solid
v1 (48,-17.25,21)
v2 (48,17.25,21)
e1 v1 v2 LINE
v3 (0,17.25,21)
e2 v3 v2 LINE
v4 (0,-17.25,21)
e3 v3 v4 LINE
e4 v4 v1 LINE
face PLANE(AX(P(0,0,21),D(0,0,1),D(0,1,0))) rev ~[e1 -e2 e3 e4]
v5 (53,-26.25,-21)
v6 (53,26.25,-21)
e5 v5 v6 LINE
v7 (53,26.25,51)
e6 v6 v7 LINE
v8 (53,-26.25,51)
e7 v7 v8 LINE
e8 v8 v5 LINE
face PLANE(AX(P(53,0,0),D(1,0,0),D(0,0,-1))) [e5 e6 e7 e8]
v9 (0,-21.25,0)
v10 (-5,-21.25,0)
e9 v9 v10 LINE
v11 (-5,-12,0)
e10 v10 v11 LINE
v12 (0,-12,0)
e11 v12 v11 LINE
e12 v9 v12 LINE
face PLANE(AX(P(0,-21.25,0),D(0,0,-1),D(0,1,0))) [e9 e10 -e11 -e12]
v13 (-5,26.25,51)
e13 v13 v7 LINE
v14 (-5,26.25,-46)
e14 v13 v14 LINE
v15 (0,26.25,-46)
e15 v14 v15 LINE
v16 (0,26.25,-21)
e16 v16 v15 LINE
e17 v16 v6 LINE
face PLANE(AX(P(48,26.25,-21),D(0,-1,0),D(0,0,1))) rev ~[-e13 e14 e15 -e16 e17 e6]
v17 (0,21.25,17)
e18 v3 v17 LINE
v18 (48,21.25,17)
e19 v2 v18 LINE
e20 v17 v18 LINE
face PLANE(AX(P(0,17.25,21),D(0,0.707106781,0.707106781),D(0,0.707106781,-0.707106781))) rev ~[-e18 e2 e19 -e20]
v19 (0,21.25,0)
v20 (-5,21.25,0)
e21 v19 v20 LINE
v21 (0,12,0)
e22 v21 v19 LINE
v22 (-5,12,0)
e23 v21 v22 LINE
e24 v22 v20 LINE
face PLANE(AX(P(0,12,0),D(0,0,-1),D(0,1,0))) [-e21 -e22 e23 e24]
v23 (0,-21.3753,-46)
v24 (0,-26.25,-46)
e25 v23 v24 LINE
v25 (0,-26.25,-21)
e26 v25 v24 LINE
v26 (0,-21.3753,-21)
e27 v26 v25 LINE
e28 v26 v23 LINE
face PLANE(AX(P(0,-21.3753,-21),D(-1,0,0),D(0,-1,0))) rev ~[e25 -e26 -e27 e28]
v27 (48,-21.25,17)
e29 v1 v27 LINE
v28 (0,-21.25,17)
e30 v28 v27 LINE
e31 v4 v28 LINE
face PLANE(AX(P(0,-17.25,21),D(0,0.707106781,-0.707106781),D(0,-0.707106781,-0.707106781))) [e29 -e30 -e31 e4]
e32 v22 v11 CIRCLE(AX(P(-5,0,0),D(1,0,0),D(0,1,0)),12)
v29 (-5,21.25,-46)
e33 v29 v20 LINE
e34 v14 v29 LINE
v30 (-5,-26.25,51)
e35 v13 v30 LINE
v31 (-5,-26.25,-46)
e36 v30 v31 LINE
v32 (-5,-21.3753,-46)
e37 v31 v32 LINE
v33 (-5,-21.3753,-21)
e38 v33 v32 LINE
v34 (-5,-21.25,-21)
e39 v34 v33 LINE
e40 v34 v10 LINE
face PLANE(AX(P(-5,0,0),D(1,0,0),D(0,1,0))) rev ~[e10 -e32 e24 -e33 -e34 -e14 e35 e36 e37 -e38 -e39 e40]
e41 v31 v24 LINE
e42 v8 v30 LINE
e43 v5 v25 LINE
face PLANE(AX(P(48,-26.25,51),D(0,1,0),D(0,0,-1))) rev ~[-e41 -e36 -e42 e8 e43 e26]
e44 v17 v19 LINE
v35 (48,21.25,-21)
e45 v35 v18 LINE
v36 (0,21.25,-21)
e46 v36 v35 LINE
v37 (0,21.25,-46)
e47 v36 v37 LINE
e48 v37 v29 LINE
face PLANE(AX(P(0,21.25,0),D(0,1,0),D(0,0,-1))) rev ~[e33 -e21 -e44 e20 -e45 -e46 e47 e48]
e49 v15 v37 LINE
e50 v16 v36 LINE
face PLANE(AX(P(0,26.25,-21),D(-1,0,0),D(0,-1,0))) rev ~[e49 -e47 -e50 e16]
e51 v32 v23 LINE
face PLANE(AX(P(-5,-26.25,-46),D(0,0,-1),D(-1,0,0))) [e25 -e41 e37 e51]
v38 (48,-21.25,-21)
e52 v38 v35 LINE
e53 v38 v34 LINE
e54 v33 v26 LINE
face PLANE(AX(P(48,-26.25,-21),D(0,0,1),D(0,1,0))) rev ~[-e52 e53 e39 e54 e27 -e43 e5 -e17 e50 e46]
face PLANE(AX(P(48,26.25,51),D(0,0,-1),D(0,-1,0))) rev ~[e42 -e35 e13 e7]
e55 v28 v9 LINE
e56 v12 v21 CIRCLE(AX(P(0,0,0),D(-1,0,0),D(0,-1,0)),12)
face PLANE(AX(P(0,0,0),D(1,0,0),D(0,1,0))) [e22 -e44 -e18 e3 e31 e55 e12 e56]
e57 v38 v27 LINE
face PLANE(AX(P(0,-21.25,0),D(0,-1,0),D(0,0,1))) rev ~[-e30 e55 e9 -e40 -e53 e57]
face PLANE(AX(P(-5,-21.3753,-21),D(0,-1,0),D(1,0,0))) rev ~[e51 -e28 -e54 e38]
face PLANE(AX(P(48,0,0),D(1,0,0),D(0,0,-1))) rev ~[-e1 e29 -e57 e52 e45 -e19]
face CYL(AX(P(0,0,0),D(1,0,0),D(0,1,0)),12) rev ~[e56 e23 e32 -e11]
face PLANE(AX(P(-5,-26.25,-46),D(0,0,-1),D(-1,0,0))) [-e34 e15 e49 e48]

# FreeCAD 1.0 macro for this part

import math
import FreeCAD as App
import Part
import Sketcher
from FreeCAD import Vector
Q = App.Units.Quantity


def add_polygon(sketch, points):
    """Adds a closed chain of lines whose ends are joined by coincident constraints."""
    first, n = sketch.GeometryCount, len(points)
    for a, b in zip(points, points[1:] + points[:1]):
        sketch.addGeometry(Part.LineSegment(App.Vector(*a, 0), App.Vector(*b, 0)), False)
    for i in range(n):
        sketch.addConstraint(Sketcher.Constraint("Coincident", first + i, 2, first + (i + 1) % n, 1))

doc = App.newDocument("Part")
params = doc.addObject("Spreadsheet::Sheet", "Params")
for row, (alias, value) in enumerate([
    ("sketch1_width", "5 mm"),
    ("sketch1_height", "72 mm"),
    ("pad1_length", "48 mm"),
    ("sketch2_radius", "12 mm"),
    ("sketch2_width", "5 mm"),
    ("sketch2_height", "21 mm"),
    ("sketch2_height2", "72 mm"),
    ("pad2_length", "5 mm"),
    ("sketch3_height", "72 mm"),
    ("sketch3_width", "52.5 mm"),
    ("pad3_length", "5 mm"),
    ("sketch4_width", "5 mm"),
    ("pad4_length", "25 mm"),
], start=1):
    params.set(f"A{row}", alias)
    params.set(f"B{row}", "=" + value)
    params.setAlias(f"B{row}", alias)

body = doc.addObject("PartDesign::Body", "Body")

sketch1 = body.newObject("Sketcher::SketchObject", "Sketch")
sketch1.AttachmentSupport = (doc.getObject("YZ_Plane"), [""])
sketch1.MapMode = "FlatFace"
add_polygon(sketch1, [(21, -21), (26, -21), (26, 51), (-26, 51), (-26, -21), (-21, -21), (-21, 17), (-17, 21), (17, 21), (21, 17)])
sketch1.addConstraint(Sketcher.Constraint("Horizontal", 0))
sketch1.addConstraint(Sketcher.Constraint("Vertical", 1))
sketch1.addConstraint(Sketcher.Constraint("Horizontal", 2))
sketch1.addConstraint(Sketcher.Constraint("Vertical", 3))
sketch1.addConstraint(Sketcher.Constraint("Horizontal", 4))
sketch1.addConstraint(Sketcher.Constraint("Vertical", 5))
sketch1.addConstraint(Sketcher.Constraint("Horizontal", 7))
sketch1.addConstraint(Sketcher.Constraint("Vertical", 9))
sketch1.addConstraint(Sketcher.Constraint("Symmetric", 0, 2, 3, 2, -2))
sketch1.addConstraint(Sketcher.Constraint("Symmetric", 5, 2, 8, 2, -2))
sketch1.addConstraint(Sketcher.Constraint("Perpendicular", 6, 8))
sketch1.addConstraint(Sketcher.Constraint("Equal", 6, 8))
sketch1.addConstraint(Sketcher.Constraint("DistanceX", 0, 1, 0, 2, Q("5 mm")))
sketch1.addConstraint(Sketcher.Constraint("DistanceX", 5, 2, 6, 2, Q("4 mm")))
sketch1.addConstraint(Sketcher.Constraint("DistanceY", 4, 2, 6, 2, Q("42 mm")))
sketch1.addConstraint(Sketcher.Constraint("DistanceX", 5, 2, 8, 2, Q("42.5 mm")))
sketch1.addConstraint(Sketcher.Constraint("DistanceY", 1, 1, 1, 2, Q("72 mm")))
sketch1.addConstraint(Sketcher.Constraint("DistanceY", 0, 2, -1, 1, Q("21 mm")))
sketch1.setExpression("Constraints[22]", "Params.sketch1_width")
sketch1.setExpression("Constraints[26]", "Params.sketch1_height")
pad1 = body.newObject("PartDesign::Pad", "Pad")
pad1.Profile = sketch1
pad1.setExpression("Length", "Params.pad1_length")

sketch2 = body.newObject("Sketcher::SketchObject", "Sketch001")
sketch2.AttachmentSupport = (doc.getObject("YZ_Plane"), [""])
sketch2.MapMode = "FlatFace"
sketch2.addGeometry(Part.LineSegment(Vector(21, 0, 0), Vector(21, -21, 0)), False)
sketch2.addGeometry(Part.LineSegment(Vector(21, -21, 0), Vector(26, -21, 0)), False)
sketch2.addGeometry(Part.LineSegment(Vector(26, -21, 0), Vector(26, 51, 0)), False)
sketch2.addGeometry(Part.LineSegment(Vector(26, 51, 0), Vector(-26, 51, 0)), False)
sketch2.addGeometry(Part.LineSegment(Vector(-26, 51, 0), Vector(-26, -21, 0)), False)
sketch2.addGeometry(Part.LineSegment(Vector(-26, -21, 0), Vector(-21, -21, 0)), False)
sketch2.addGeometry(Part.LineSegment(Vector(-21, -21, 0), Vector(-21, 0, 0)), False)
sketch2.addGeometry(Part.LineSegment(Vector(-21, 0, 0), Vector(-12, 0, 0)), False)
sketch2.addGeometry(Part.ArcOfCircle(Part.Circle(Vector(0, 0, 0), Vector(0, 0, 1), 12), math.radians(0), math.radians(180)), False)
sketch2.addGeometry(Part.LineSegment(Vector(12, 0, 0), Vector(21, 0, 0)), False)
sketch2.addConstraint(Sketcher.Constraint("Coincident", 0, 2, 1, 1))
sketch2.addConstraint(Sketcher.Constraint("Coincident", 1, 2, 2, 1))
sketch2.addConstraint(Sketcher.Constraint("Coincident", 2, 2, 3, 1))
sketch2.addConstraint(Sketcher.Constraint("Coincident", 3, 2, 4, 1))
sketch2.addConstraint(Sketcher.Constraint("Coincident", 4, 2, 5, 1))
sketch2.addConstraint(Sketcher.Constraint("Coincident", 5, 2, 6, 1))
sketch2.addConstraint(Sketcher.Constraint("Coincident", 6, 2, 7, 1))
sketch2.addConstraint(Sketcher.Constraint("Coincident", 7, 2, 8, 2))
sketch2.addConstraint(Sketcher.Constraint("Coincident", 8, 1, 9, 1))
sketch2.addConstraint(Sketcher.Constraint("Coincident", 9, 2, 0, 1))
sketch2.addConstraint(Sketcher.Constraint("Vertical", 0))
sketch2.addConstraint(Sketcher.Constraint("Horizontal", 1))
sketch2.addConstraint(Sketcher.Constraint("Vertical", 2))
sketch2.addConstraint(Sketcher.Constraint("Horizontal", 3))
sketch2.addConstraint(Sketcher.Constraint("Vertical", 4))
sketch2.addConstraint(Sketcher.Constraint("Horizontal", 5))
sketch2.addConstraint(Sketcher.Constraint("Vertical", 6))
sketch2.addConstraint(Sketcher.Constraint("Horizontal", 7))
sketch2.addConstraint(Sketcher.Constraint("Horizontal", 9))
sketch2.addConstraint(Sketcher.Constraint("Coincident", 8, 3, -1, 1))
sketch2.addConstraint(Sketcher.Constraint("Symmetric", 6, 2, 9, 2, -1, 1))
sketch2.addConstraint(Sketcher.Constraint("Symmetric", 1, 2, 4, 2, -2))
sketch2.addConstraint(Sketcher.Constraint("PointOnObject", 6, 2, -1))
sketch2.addConstraint(Sketcher.Constraint("Radius", 8, Q("12 mm")))
sketch2.addConstraint(Sketcher.Constraint("DistanceX", 1, 1, 1, 2, Q("5 mm")))
sketch2.addConstraint(Sketcher.Constraint("DistanceX", 5, 2, 0, 2, Q("42.5 mm")))
sketch2.addConstraint(Sketcher.Constraint("DistanceY", 0, 2, 0, 1, Q("21 mm")))
sketch2.addConstraint(Sketcher.Constraint("DistanceY", 2, 1, 2, 2, Q("72 mm")))
sketch2.setExpression("Constraints[23]", "Params.sketch2_radius")
sketch2.setExpression("Constraints[24]", "Params.sketch2_width")
sketch2.setExpression("Constraints[26]", "Params.sketch2_height")
sketch2.setExpression("Constraints[27]", "Params.sketch2_height2")
pad2 = body.newObject("PartDesign::Pad", "Pad001")
pad2.Profile = sketch2
pad2.setExpression("Length", "Params.pad2_length")
pad2.Reversed = True

sketch3 = body.newObject("Sketcher::SketchObject", "Sketch002")
sketch3.AttachmentSupport = (doc.getObject("YZ_Plane"), [""])
sketch3.MapMode = "FlatFace"
sketch3.AttachmentOffset = App.Placement(Vector(0, 0, 48), App.Rotation())
add_polygon(sketch3, [(-26, -21), (26, -21), (26, 51), (-26, 51)])
sketch3.addConstraint(Sketcher.Constraint("Horizontal", 0))
sketch3.addConstraint(Sketcher.Constraint("Vertical", 1))
sketch3.addConstraint(Sketcher.Constraint("Horizontal", 2))
sketch3.addConstraint(Sketcher.Constraint("Vertical", 3))
sketch3.addConstraint(Sketcher.Constraint("DistanceY", 1, 1, 1, 2, Q("72 mm")))
sketch3.addConstraint(Sketcher.Constraint("DistanceX", 0, 1, 0, 2, Q("52.5 mm")))
sketch3.addConstraint(Sketcher.Constraint("DistanceY", 0, 2, -1, 1, Q("21 mm")))
sketch3.addConstraint(Sketcher.Constraint("DistanceX", -1, 1, 0, 2, Q("26.25 mm")))
sketch3.setExpression("Constraints[8]", "Params.sketch3_height")
sketch3.setExpression("Constraints[9]", "Params.sketch3_width")
pad3 = body.newObject("PartDesign::Pad", "Pad002")
pad3.Profile = sketch3
pad3.setExpression("Length", "Params.pad3_length")

sketch4 = body.newObject("Sketcher::SketchObject", "Sketch003")
sketch4.AttachmentSupport = (doc.getObject("XY_Plane"), [""])
sketch4.MapMode = "FlatFace"
sketch4.AttachmentOffset = App.Placement(Vector(0, 0, -21), App.Rotation())
add_polygon(sketch4, [(-5, -26.2), (-5, -21.4), (0, -21.4), (0, -26.2)])
add_polygon(sketch4, [(-5, 21.2), (-5, 26.2), (0, 26.2), (0, 21.2)])
sketch4.addConstraint(Sketcher.Constraint("Vertical", 0))
sketch4.addConstraint(Sketcher.Constraint("Horizontal", 1))
sketch4.addConstraint(Sketcher.Constraint("Vertical", 2))
sketch4.addConstraint(Sketcher.Constraint("Horizontal", 3))
sketch4.addConstraint(Sketcher.Constraint("Vertical", 4))
sketch4.addConstraint(Sketcher.Constraint("Horizontal", 5))
sketch4.addConstraint(Sketcher.Constraint("Vertical", 6))
sketch4.addConstraint(Sketcher.Constraint("Horizontal", 7))
sketch4.addConstraint(Sketcher.Constraint("Symmetric", 2, 2, 5, 2, -1, 1))
sketch4.addConstraint(Sketcher.Constraint("PointOnObject", 1, 2, -2))
sketch4.addConstraint(Sketcher.Constraint("Vertical", 3, 2, 4, 2))
sketch4.addConstraint(Sketcher.Constraint("Equal", 7, 4))
sketch4.addConstraint(Sketcher.Constraint("DistanceX", 1, 1, 1, 2, Q("5 mm")))
sketch4.addConstraint(Sketcher.Constraint("DistanceY", 3, 2, 4, 2, Q("52.5 mm")))
sketch4.addConstraint(Sketcher.Constraint("DistanceY", 0, 1, 0, 2, Q("4.8747 mm")))
sketch4.setExpression("Constraints[20]", "Params.sketch4_width")
pad4 = body.newObject("PartDesign::Pad", "Pad003")
pad4.Profile = sketch4
pad4.setExpression("Length", "Params.pad4_length")
pad4.Reversed = True

doc.recompute()
